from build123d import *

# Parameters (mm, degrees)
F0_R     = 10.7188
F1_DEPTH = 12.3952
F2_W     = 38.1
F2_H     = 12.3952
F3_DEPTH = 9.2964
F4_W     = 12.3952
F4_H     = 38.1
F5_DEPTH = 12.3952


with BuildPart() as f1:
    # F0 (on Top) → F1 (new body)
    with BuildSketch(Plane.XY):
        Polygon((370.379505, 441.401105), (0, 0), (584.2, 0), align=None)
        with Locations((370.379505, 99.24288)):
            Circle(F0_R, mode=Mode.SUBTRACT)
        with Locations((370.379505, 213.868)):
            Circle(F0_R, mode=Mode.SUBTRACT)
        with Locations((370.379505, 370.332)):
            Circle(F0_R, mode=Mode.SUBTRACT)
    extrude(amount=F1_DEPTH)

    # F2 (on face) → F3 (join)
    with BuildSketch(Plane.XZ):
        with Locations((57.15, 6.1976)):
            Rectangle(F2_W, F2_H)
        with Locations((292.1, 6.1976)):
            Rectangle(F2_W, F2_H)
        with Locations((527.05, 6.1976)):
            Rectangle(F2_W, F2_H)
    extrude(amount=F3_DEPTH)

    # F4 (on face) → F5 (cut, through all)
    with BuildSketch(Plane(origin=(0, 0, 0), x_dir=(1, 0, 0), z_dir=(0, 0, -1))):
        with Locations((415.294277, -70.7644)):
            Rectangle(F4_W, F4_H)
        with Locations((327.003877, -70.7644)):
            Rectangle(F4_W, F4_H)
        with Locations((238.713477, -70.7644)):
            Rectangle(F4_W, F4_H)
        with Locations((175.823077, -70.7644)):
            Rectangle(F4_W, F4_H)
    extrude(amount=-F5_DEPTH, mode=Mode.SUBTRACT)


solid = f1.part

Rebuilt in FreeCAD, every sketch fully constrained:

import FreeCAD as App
import Part
import Sketcher
from FreeCAD import Vector
Q = App.Units.Quantity

doc = App.newDocument("Part")
body = doc.addObject("PartDesign::Body", "Body")

# Sketch on XY plane
sketch1 = body.newObject("Sketcher::SketchObject", "Sketch")
sketch1.AttachmentSupport = (doc.getObject("XY_Plane"), [""])
sketch1.MapMode = "FlatFace"
sketch1.addGeometry(Part.LineSegment(Vector(370.379505, 441.401105, 0), Vector(0, 0, 0)), False)
sketch1.addGeometry(Part.LineSegment(Vector(0, 0, 0), Vector(584.2, 0, 0)), False)
sketch1.addGeometry(Part.LineSegment(Vector(584.2, 0, 0), Vector(370.379505, 441.401105, 0)), False)
sketch1.addGeometry(Part.Circle(Vector(370.379505, 99.24288, 0), Vector(0, 0, 1), 10.7188), False)
sketch1.addGeometry(Part.Circle(Vector(370.379505, 213.868, 0), Vector(0, 0, 1), 10.7188), False)
sketch1.addGeometry(Part.Circle(Vector(370.379505, 370.332, 0), Vector(0, 0, 1), 10.7188), False)
sketch1.addConstraint(Sketcher.Constraint("Coincident", 0, 2, 1, 1))
sketch1.addConstraint(Sketcher.Constraint("Coincident", 1, 2, 2, 1))
sketch1.addConstraint(Sketcher.Constraint("Coincident", 2, 2, 0, 1))
sketch1.addConstraint(Sketcher.Constraint("Horizontal", 1))
sketch1.addConstraint(Sketcher.Constraint("Coincident", 0, 2, -1, 1))
sketch1.addConstraint(Sketcher.Constraint("Equal", 3, 4))
sketch1.addConstraint(Sketcher.Constraint("Equal", 4, 5))
sketch1.addConstraint(Sketcher.Constraint("Vertical", 3, 3, 4, 3))
sketch1.addConstraint(Sketcher.Constraint("Vertical", 4, 3, 5, 3))
sketch1.addConstraint(Sketcher.Constraint("Vertical", 5, 3, 2, 2))
sketch1.addConstraint(Sketcher.Constraint("DistanceX", 1, 1, 1, 2, Q("23 in")))
sketch1.addConstraint(Sketcher.Constraint("Diameter", 3, Q("0.844 in")))
sketch1.addConstraint(Sketcher.Constraint("Angle", 0, Q("-130 deg")))
sketch1.addConstraint(Sketcher.Constraint("DistanceY", -1, 1, 4, 3, Q("8.42 in")))
sketch1.addConstraint(Sketcher.Constraint("DistanceY", -1, 1, 5, 3, Q("14.58 in")))
sketch1.addConstraint(Sketcher.Constraint("DistanceY", -1, 1, 3, 3, Q("3.9072 in")))
sketch1.addConstraint(Sketcher.Constraint("Distance", 0, 576.20822))
pad1 = body.newObject("PartDesign::Pad", "Pad")
pad1.Profile = sketch1
pad1.Length = Q("0.488 in")

# Sketch on XZ plane
sketch2 = body.newObject("Sketcher::SketchObject", "Sketch001")
sketch2.AttachmentSupport = (doc.getObject("XZ_Plane"), [""])
sketch2.MapMode = "FlatFace"
sketch2.addGeometry(Part.LineSegment(Vector(38.1, 12.3952, 0), Vector(38.1, 0, 0)), False)
sketch2.addGeometry(Part.LineSegment(Vector(38.1, 0, 0), Vector(76.2, 0, 0)), False)
sketch2.addGeometry(Part.LineSegment(Vector(76.2, 0, 0), Vector(76.2, 12.3952, 0)), False)
sketch2.addGeometry(Part.LineSegment(Vector(76.2, 12.3952, 0), Vector(38.1, 12.3952, 0)), False)
sketch2.addGeometry(Part.LineSegment(Vector(273.05, 12.3952, 0), Vector(273.05, 0, 0)), False)
sketch2.addGeometry(Part.LineSegment(Vector(273.05, 0, 0), Vector(311.15, 0, 0)), False)
sketch2.addGeometry(Part.LineSegment(Vector(311.15, 0, 0), Vector(311.15, 12.3952, 0)), False)
sketch2.addGeometry(Part.LineSegment(Vector(311.15, 12.3952, 0), Vector(273.05, 12.3952, 0)), False)
sketch2.addGeometry(Part.LineSegment(Vector(508, 12.3952, 0), Vector(508, 0, 0)), False)
sketch2.addGeometry(Part.LineSegment(Vector(508, 0, 0), Vector(546.1, 0, 0)), False)
sketch2.addGeometry(Part.LineSegment(Vector(546.1, 0, 0), Vector(546.1, 12.3952, 0)), False)
sketch2.addGeometry(Part.LineSegment(Vector(546.1, 12.3952, 0), Vector(508, 12.3952, 0)), False)
sketch2.addConstraint(Sketcher.Constraint("Coincident", 0, 2, 1, 1))
sketch2.addConstraint(Sketcher.Constraint("Coincident", 1, 2, 2, 1))
sketch2.addConstraint(Sketcher.Constraint("Coincident", 2, 2, 3, 1))
sketch2.addConstraint(Sketcher.Constraint("Coincident", 3, 2, 0, 1))
sketch2.addConstraint(Sketcher.Constraint("Coincident", 4, 2, 5, 1))
sketch2.addConstraint(Sketcher.Constraint("Coincident", 5, 2, 6, 1))
sketch2.addConstraint(Sketcher.Constraint("Coincident", 6, 2, 7, 1))
sketch2.addConstraint(Sketcher.Constraint("Coincident", 7, 2, 4, 1))
sketch2.addConstraint(Sketcher.Constraint("Coincident", 8, 2, 9, 1))
sketch2.addConstraint(Sketcher.Constraint("Coincident", 9, 2, 10, 1))
sketch2.addConstraint(Sketcher.Constraint("Coincident", 10, 2, 11, 1))
sketch2.addConstraint(Sketcher.Constraint("Coincident", 11, 2, 8, 1))
sketch2.addConstraint(Sketcher.Constraint("Vertical", 0))
sketch2.addConstraint(Sketcher.Constraint("Horizontal", 1))
sketch2.addConstraint(Sketcher.Constraint("Vertical", 2))
sketch2.addConstraint(Sketcher.Constraint("Horizontal", 3))
sketch2.addConstraint(Sketcher.Constraint("Vertical", 4))
sketch2.addConstraint(Sketcher.Constraint("Horizontal", 5))
sketch2.addConstraint(Sketcher.Constraint("Vertical", 6))
sketch2.addConstraint(Sketcher.Constraint("Horizontal", 7))
sketch2.addConstraint(Sketcher.Constraint("Vertical", 8))
sketch2.addConstraint(Sketcher.Constraint("Horizontal", 9))
sketch2.addConstraint(Sketcher.Constraint("Vertical", 10))
sketch2.addConstraint(Sketcher.Constraint("Horizontal", 11))
sketch2.addConstraint(Sketcher.Constraint("PointOnObject", 0, 2, -1))
sketch2.addConstraint(Sketcher.Constraint("PointOnObject", 4, 2, -1))
sketch2.addConstraint(Sketcher.Constraint("PointOnObject", 8, 2, -1))
sketch2.addConstraint(Sketcher.Constraint("Horizontal", 3, 2, 6, 2))
sketch2.addConstraint(Sketcher.Constraint("Horizontal", 7, 2, 10, 2))
sketch2.addConstraint(Sketcher.Constraint("Equal", 3, 5))
sketch2.addConstraint(Sketcher.Constraint("Equal", 7, 9))
sketch2.addConstraint(Sketcher.Constraint("DistanceX", 1, 1, 1, 2, Q("1.5 in")))
sketch2.addConstraint(Sketcher.Constraint("DistanceX", -1, 1, 1, 2, Q("3 in")))
sketch2.addConstraint(Sketcher.Constraint("DistanceX", -1, 1, 8, 2, Q("20 in")))
sketch2.addConstraint(Sketcher.Constraint("DistanceY", 0, 2, 0, 1, Q("0.488 in")))
sketch2.addConstraint(Sketcher.Constraint("DistanceX", -1, 1, 4, 2, Q("10.75 in")))
pad2 = body.newObject("PartDesign::Pad", "Pad001")
pad2.Profile = sketch2
pad2.Length = Q("0.366 in")

# Sketch on XY plane
sketch3 = body.newObject("Sketcher::SketchObject", "Sketch002")
sketch3.AttachmentSupport = (doc.getObject("XY_Plane"), [""])
sketch3.MapMode = "FlatFace"
sketch3.addGeometry(Part.LineSegment(Vector(409.096677, 51.7144, 0), Vector(409.096677, 89.8144, 0)), False)
sketch3.addGeometry(Part.LineSegment(Vector(409.096677, 89.8144, 0), Vector(421.491877, 89.8144, 0)), False)
sketch3.addGeometry(Part.LineSegment(Vector(421.491877, 89.8144, 0), Vector(421.491877, 51.7144, 0)), False)
sketch3.addGeometry(Part.LineSegment(Vector(421.491877, 51.7144, 0), Vector(409.096677, 51.7144, 0)), False)
sketch3.addGeometry(Part.LineSegment(Vector(320.806277, 51.7144, 0), Vector(320.806277, 89.8144, 0)), False)
sketch3.addGeometry(Part.LineSegment(Vector(320.806277, 89.8144, 0), Vector(333.201477, 89.8144, 0)), False)
sketch3.addGeometry(Part.LineSegment(Vector(333.201477, 89.8144, 0), Vector(333.201477, 51.7144, 0)), False)
sketch3.addGeometry(Part.LineSegment(Vector(333.201477, 51.7144, 0), Vector(320.806277, 51.7144, 0)), False)
sketch3.addGeometry(Part.LineSegment(Vector(232.515877, 51.7144, 0), Vector(232.515877, 89.8144, 0)), False)
sketch3.addGeometry(Part.LineSegment(Vector(232.515877, 89.8144, 0), Vector(244.911077, 89.8144, 0)), False)
sketch3.addGeometry(Part.LineSegment(Vector(244.911077, 89.8144, 0), Vector(244.911077, 51.7144, 0)), False)
sketch3.addGeometry(Part.LineSegment(Vector(244.911077, 51.7144, 0), Vector(232.515877, 51.7144, 0)), False)
sketch3.addGeometry(Part.LineSegment(Vector(169.625477, 51.7144, 0), Vector(169.625477, 89.8144, 0)), False)
sketch3.addGeometry(Part.LineSegment(Vector(169.625477, 89.8144, 0), Vector(182.020677, 89.8144, 0)), False)
sketch3.addGeometry(Part.LineSegment(Vector(182.020677, 89.8144, 0), Vector(182.020677, 51.7144, 0)), False)
sketch3.addGeometry(Part.LineSegment(Vector(182.020677, 51.7144, 0), Vector(169.625477, 51.7144, 0)), False)
sketch3.addConstraint(Sketcher.Constraint("Coincident", 0, 2, 1, 1))
sketch3.addConstraint(Sketcher.Constraint("Coincident", 1, 2, 2, 1))
sketch3.addConstraint(Sketcher.Constraint("Coincident", 2, 2, 3, 1))
sketch3.addConstraint(Sketcher.Constraint("Coincident", 3, 2, 0, 1))
sketch3.addConstraint(Sketcher.Constraint("Coincident", 4, 2, 5, 1))
sketch3.addConstraint(Sketcher.Constraint("Coincident", 5, 2, 6, 1))
sketch3.addConstraint(Sketcher.Constraint("Coincident", 6, 2, 7, 1))
sketch3.addConstraint(Sketcher.Constraint("Coincident", 7, 2, 4, 1))
sketch3.addConstraint(Sketcher.Constraint("Coincident", 8, 2, 9, 1))
sketch3.addConstraint(Sketcher.Constraint("Coincident", 9, 2, 10, 1))
sketch3.addConstraint(Sketcher.Constraint("Coincident", 10, 2, 11, 1))
sketch3.addConstraint(Sketcher.Constraint("Coincident", 11, 2, 8, 1))
sketch3.addConstraint(Sketcher.Constraint("Coincident", 12, 2, 13, 1))
sketch3.addConstraint(Sketcher.Constraint("Coincident", 13, 2, 14, 1))
sketch3.addConstraint(Sketcher.Constraint("Coincident", 14, 2, 15, 1))
sketch3.addConstraint(Sketcher.Constraint("Coincident", 15, 2, 12, 1))
sketch3.addConstraint(Sketcher.Constraint("Vertical", 0))
sketch3.addConstraint(Sketcher.Constraint("Horizontal", 1))
sketch3.addConstraint(Sketcher.Constraint("Vertical", 2))
sketch3.addConstraint(Sketcher.Constraint("Horizontal", 3))
sketch3.addConstraint(Sketcher.Constraint("Vertical", 4))
sketch3.addConstraint(Sketcher.Constraint("Horizontal", 5))
sketch3.addConstraint(Sketcher.Constraint("Vertical", 6))
sketch3.addConstraint(Sketcher.Constraint("Horizontal", 7))
sketch3.addConstraint(Sketcher.Constraint("Vertical", 8))
sketch3.addConstraint(Sketcher.Constraint("Horizontal", 9))
sketch3.addConstraint(Sketcher.Constraint("Vertical", 10))
sketch3.addConstraint(Sketcher.Constraint("Horizontal", 11))
sketch3.addConstraint(Sketcher.Constraint("Vertical", 12))
sketch3.addConstraint(Sketcher.Constraint("Horizontal", 13))
sketch3.addConstraint(Sketcher.Constraint("Vertical", 14))
sketch3.addConstraint(Sketcher.Constraint("Horizontal", 15))
sketch3.addConstraint(Sketcher.Constraint("Horizontal", 1, 2, 4, 2))
sketch3.addConstraint(Sketcher.Constraint("Horizontal", 3, 2, 6, 2))
sketch3.addConstraint(Sketcher.Constraint("Horizontal", 5, 2, 8, 2))
sketch3.addConstraint(Sketcher.Constraint("Horizontal", 7, 2, 10, 2))
sketch3.addConstraint(Sketcher.Constraint("Horizontal", 9, 2, 12, 2))
sketch3.addConstraint(Sketcher.Constraint("Horizontal", 11, 2, 14, 2))
sketch3.addConstraint(Sketcher.Constraint("Equal", 3, 5))
sketch3.addConstraint(Sketcher.Constraint("Equal", 7, 9))
sketch3.addConstraint(Sketcher.Constraint("Equal", 11, 13))
sketch3.addConstraint(Sketcher.Constraint("DistanceY", 0, 1, 0, 2, Q("1.5 in")))
sketch3.addConstraint(Sketcher.Constraint("DistanceX", 1, 1, 1, 2, Q("0.488 in")))
sketch3.addConstraint(Sketcher.Constraint("DistanceY", -1, 1, 0, 2, Q("3.536 in")))
sketch3.addConstraint(Sketcher.Constraint("DistanceX", 4, 2, 0, 2, Q("3.476 in")))
sketch3.addConstraint(Sketcher.Constraint("DistanceX", 8, 2, 4, 2, Q("3.476 in")))
sketch3.addConstraint(Sketcher.Constraint("DistanceX", 12, 2, 8, 2, Q("2.476 in")))
sketch3.addConstraint(Sketcher.Constraint("DistanceX", -1, 1, 0, 2, 409.096677))
pocket1 = body.newObject("PartDesign::Pocket", "Pocket")
pocket1.Profile = sketch3
pocket1.Type = "ThroughAll"
pocket1.Reversed = True

doc.recompute()
